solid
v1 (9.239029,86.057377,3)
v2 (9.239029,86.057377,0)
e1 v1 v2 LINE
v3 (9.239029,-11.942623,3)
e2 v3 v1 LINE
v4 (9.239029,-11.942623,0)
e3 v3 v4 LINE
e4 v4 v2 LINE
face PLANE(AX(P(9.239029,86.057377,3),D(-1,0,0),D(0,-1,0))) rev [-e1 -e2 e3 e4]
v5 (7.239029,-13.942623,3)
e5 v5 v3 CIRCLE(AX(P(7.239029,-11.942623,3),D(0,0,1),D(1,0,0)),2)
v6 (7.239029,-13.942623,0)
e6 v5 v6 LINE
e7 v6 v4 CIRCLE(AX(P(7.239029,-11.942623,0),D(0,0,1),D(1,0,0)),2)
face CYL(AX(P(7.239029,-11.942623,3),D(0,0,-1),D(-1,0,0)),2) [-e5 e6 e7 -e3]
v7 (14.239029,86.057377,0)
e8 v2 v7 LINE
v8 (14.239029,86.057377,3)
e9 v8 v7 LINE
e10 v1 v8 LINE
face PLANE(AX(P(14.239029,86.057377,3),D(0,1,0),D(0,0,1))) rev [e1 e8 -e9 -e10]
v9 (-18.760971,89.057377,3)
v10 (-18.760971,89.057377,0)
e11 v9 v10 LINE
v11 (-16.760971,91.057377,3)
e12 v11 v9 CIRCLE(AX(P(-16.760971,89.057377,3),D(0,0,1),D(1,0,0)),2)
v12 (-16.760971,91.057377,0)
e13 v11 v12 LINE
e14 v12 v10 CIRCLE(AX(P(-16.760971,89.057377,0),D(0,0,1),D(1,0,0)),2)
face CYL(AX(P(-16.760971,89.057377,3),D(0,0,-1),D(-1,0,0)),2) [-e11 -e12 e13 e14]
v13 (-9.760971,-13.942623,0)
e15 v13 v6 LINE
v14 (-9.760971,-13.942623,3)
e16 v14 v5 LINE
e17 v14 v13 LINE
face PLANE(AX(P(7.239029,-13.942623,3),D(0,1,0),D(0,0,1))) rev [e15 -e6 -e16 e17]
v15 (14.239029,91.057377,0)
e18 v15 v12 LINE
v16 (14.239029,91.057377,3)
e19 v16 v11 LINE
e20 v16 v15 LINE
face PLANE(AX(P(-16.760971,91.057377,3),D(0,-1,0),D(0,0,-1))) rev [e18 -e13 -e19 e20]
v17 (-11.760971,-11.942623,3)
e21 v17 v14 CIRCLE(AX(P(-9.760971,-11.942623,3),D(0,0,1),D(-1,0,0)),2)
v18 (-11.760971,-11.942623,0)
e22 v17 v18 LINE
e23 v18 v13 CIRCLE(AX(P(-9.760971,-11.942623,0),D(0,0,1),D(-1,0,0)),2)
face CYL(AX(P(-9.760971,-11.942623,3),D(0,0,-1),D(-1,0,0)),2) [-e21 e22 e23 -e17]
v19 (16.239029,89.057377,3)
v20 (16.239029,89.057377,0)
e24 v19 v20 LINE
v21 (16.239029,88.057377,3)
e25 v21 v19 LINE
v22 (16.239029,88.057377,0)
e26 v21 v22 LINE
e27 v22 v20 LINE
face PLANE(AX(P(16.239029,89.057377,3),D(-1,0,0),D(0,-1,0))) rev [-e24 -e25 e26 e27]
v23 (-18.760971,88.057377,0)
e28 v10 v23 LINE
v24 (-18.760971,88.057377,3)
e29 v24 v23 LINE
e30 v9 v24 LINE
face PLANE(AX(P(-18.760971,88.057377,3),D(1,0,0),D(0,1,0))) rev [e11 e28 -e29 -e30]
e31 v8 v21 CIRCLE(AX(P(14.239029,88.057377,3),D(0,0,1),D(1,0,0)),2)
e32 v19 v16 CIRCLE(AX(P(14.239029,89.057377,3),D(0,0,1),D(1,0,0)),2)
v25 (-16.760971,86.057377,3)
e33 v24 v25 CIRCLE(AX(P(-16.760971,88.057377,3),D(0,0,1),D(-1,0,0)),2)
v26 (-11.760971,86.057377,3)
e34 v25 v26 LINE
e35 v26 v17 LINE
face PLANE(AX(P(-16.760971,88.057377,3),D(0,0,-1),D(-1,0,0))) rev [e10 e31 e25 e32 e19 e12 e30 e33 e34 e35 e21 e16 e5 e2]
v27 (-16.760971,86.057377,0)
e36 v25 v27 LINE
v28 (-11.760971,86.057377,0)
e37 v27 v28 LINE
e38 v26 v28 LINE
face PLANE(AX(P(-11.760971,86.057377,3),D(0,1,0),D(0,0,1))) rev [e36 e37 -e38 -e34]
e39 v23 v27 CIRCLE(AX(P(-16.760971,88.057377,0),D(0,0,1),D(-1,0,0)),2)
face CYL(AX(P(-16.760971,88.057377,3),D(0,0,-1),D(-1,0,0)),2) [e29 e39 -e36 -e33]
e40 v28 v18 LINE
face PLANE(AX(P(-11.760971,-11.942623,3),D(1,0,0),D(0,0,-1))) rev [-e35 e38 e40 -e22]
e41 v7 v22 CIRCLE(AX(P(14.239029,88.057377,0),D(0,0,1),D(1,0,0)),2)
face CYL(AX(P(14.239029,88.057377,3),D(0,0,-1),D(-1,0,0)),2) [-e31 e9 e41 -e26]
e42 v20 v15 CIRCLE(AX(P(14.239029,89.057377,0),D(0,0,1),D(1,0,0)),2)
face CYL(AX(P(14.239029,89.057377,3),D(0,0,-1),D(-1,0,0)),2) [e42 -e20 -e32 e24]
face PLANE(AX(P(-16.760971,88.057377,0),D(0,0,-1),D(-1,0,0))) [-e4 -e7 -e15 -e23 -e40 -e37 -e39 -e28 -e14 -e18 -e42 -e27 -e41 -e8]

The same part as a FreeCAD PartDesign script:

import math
import FreeCAD as App
import Part
import Sketcher

doc = App.newDocument("Part")
body = doc.addObject("PartDesign::Body", "Body")

sketch1 = doc.addObject("Sketcher::SketchObject", "Sketch")
body.addObject(sketch1)
sketch1.AttachmentSupport = (doc.XY_Plane, [""])
sketch1.MapMode = "FlatFace"
sketch1.addGeometry(Part.LineSegment(App.Vector(14.2, 91.1, 0), App.Vector(-16.8, 91.1, 0)), False)
sketch1.addGeometry(Part.ArcOfCircle(Part.Circle(App.Vector(-16.8, 89.1, 0), App.Vector(0, 0, 1), 2), math.radians(90), math.radians(180)), False)
sketch1.addGeometry(Part.LineSegment(App.Vector(-18.8, 89.1, 0), App.Vector(-18.8, 88.1, 0)), False)
sketch1.addGeometry(Part.ArcOfCircle(Part.Circle(App.Vector(-16.8, 88.1, 0), App.Vector(0, 0, 1), 2), math.radians(180), math.radians(270)), False)
sketch1.addGeometry(Part.LineSegment(App.Vector(-16.8, 86.1, 0), App.Vector(-11.8, 86.1, 0)), False)
sketch1.addGeometry(Part.LineSegment(App.Vector(-11.8, 86.1, 0), App.Vector(-11.8, -11.9, 0)), False)
sketch1.addGeometry(Part.ArcOfCircle(Part.Circle(App.Vector(-9.8, -11.9, 0), App.Vector(0, 0, 1), 2), math.radians(180), math.radians(270)), False)
sketch1.addGeometry(Part.LineSegment(App.Vector(-9.8, -13.9, 0), App.Vector(7.2, -13.9, 0)), False)
sketch1.addGeometry(Part.ArcOfCircle(Part.Circle(App.Vector(7.2, -11.9, 0), App.Vector(0, 0, 1), 2), math.radians(-90), math.radians(0)), False)
sketch1.addGeometry(Part.LineSegment(App.Vector(9.2, -11.9, 0), App.Vector(9.2, 86.1, 0)), False)
sketch1.addGeometry(Part.LineSegment(App.Vector(9.2, 86.1, 0), App.Vector(14.2, 86.1, 0)), False)
sketch1.addGeometry(Part.ArcOfCircle(Part.Circle(App.Vector(14.2, 88.1, 0), App.Vector(0, 0, 1), 2), math.radians(-90), math.radians(0)), False)
sketch1.addGeometry(Part.LineSegment(App.Vector(16.2, 88.1, 0), App.Vector(16.2, 89.1, 0)), False)
sketch1.addGeometry(Part.ArcOfCircle(Part.Circle(App.Vector(14.2, 89.1, 0), App.Vector(0, 0, 1), 2), math.radians(0), math.radians(90)), False)
sketch1.addConstraint(Sketcher.Constraint("Tangent", 0, 2, 1, 1))
sketch1.addConstraint(Sketcher.Constraint("Tangent", 1, 2, 2, 1))
sketch1.addConstraint(Sketcher.Constraint("Tangent", 2, 2, 3, 1))
sketch1.addConstraint(Sketcher.Constraint("Tangent", 3, 2, 4, 1))
sketch1.addConstraint(Sketcher.Constraint("Coincident", 4, 2, 5, 1))
sketch1.addConstraint(Sketcher.Constraint("Tangent", 5, 2, 6, 1))
sketch1.addConstraint(Sketcher.Constraint("Tangent", 6, 2, 7, 1))
sketch1.addConstraint(Sketcher.Constraint("Tangent", 7, 2, 8, 1))
sketch1.addConstraint(Sketcher.Constraint("Tangent", 8, 2, 9, 1))
sketch1.addConstraint(Sketcher.Constraint("Coincident", 9, 2, 10, 1))
sketch1.addConstraint(Sketcher.Constraint("Tangent", 10, 2, 11, 1))
sketch1.addConstraint(Sketcher.Constraint("Tangent", 11, 2, 12, 1))
sketch1.addConstraint(Sketcher.Constraint("Tangent", 12, 2, 13, 1))
sketch1.addConstraint(Sketcher.Constraint("Tangent", 13, 2, 0, 1))
sketch1.addConstraint(Sketcher.Constraint("Horizontal", 0))
sketch1.addConstraint(Sketcher.Constraint("Vertical", 2))
sketch1.addConstraint(Sketcher.Constraint("Horizontal", 4))
sketch1.addConstraint(Sketcher.Constraint("Vertical", 5))
sketch1.addConstraint(Sketcher.Constraint("Horizontal", 7))
sketch1.addConstraint(Sketcher.Constraint("Vertical", 9))
sketch1.addConstraint(Sketcher.Constraint("Horizontal", 10))
sketch1.addConstraint(Sketcher.Constraint("Vertical", 12))
sketch1.addConstraint(Sketcher.Constraint("Equal", 1, 3))
sketch1.addConstraint(Sketcher.Constraint("Equal", 3, 6))
sketch1.addConstraint(Sketcher.Constraint("Equal", 6, 8))
sketch1.addConstraint(Sketcher.Constraint("Equal", 8, 11))
sketch1.addConstraint(Sketcher.Constraint("Equal", 11, 13))
sketch1.addConstraint(Sketcher.Constraint("Horizontal", 3, 3, 11, 3))
sketch1.addConstraint(Sketcher.Constraint("Equal", 4, 10))
sketch1.addConstraint(Sketcher.Constraint("Radius", 1, 2.0))
sketch1.addConstraint(Sketcher.Constraint("DistanceX", 0, 2, 0, 1, 31.0))
sketch1.addConstraint(Sketcher.Constraint("DistanceX", 4, 1, 4, 2, 5.0))
sketch1.addConstraint(Sketcher.Constraint("DistanceY", 2, 2, 2, 1, 1.0))
sketch1.addConstraint(Sketcher.Constraint("DistanceY", 5, 2, 5, 1, 98.0))
sketch1.addConstraint(Sketcher.Constraint("DistanceX", 1, 3, -1, 1, 16.760971))
sketch1.addConstraint(Sketcher.Constraint("DistanceY", -1, 1, 1, 3, 89.057377))
pad1 = doc.addObject("PartDesign::Pad", "Pad")
body.addObject(pad1)
pad1.Profile = sketch1
pad1.Length = 3

doc.recompute()
